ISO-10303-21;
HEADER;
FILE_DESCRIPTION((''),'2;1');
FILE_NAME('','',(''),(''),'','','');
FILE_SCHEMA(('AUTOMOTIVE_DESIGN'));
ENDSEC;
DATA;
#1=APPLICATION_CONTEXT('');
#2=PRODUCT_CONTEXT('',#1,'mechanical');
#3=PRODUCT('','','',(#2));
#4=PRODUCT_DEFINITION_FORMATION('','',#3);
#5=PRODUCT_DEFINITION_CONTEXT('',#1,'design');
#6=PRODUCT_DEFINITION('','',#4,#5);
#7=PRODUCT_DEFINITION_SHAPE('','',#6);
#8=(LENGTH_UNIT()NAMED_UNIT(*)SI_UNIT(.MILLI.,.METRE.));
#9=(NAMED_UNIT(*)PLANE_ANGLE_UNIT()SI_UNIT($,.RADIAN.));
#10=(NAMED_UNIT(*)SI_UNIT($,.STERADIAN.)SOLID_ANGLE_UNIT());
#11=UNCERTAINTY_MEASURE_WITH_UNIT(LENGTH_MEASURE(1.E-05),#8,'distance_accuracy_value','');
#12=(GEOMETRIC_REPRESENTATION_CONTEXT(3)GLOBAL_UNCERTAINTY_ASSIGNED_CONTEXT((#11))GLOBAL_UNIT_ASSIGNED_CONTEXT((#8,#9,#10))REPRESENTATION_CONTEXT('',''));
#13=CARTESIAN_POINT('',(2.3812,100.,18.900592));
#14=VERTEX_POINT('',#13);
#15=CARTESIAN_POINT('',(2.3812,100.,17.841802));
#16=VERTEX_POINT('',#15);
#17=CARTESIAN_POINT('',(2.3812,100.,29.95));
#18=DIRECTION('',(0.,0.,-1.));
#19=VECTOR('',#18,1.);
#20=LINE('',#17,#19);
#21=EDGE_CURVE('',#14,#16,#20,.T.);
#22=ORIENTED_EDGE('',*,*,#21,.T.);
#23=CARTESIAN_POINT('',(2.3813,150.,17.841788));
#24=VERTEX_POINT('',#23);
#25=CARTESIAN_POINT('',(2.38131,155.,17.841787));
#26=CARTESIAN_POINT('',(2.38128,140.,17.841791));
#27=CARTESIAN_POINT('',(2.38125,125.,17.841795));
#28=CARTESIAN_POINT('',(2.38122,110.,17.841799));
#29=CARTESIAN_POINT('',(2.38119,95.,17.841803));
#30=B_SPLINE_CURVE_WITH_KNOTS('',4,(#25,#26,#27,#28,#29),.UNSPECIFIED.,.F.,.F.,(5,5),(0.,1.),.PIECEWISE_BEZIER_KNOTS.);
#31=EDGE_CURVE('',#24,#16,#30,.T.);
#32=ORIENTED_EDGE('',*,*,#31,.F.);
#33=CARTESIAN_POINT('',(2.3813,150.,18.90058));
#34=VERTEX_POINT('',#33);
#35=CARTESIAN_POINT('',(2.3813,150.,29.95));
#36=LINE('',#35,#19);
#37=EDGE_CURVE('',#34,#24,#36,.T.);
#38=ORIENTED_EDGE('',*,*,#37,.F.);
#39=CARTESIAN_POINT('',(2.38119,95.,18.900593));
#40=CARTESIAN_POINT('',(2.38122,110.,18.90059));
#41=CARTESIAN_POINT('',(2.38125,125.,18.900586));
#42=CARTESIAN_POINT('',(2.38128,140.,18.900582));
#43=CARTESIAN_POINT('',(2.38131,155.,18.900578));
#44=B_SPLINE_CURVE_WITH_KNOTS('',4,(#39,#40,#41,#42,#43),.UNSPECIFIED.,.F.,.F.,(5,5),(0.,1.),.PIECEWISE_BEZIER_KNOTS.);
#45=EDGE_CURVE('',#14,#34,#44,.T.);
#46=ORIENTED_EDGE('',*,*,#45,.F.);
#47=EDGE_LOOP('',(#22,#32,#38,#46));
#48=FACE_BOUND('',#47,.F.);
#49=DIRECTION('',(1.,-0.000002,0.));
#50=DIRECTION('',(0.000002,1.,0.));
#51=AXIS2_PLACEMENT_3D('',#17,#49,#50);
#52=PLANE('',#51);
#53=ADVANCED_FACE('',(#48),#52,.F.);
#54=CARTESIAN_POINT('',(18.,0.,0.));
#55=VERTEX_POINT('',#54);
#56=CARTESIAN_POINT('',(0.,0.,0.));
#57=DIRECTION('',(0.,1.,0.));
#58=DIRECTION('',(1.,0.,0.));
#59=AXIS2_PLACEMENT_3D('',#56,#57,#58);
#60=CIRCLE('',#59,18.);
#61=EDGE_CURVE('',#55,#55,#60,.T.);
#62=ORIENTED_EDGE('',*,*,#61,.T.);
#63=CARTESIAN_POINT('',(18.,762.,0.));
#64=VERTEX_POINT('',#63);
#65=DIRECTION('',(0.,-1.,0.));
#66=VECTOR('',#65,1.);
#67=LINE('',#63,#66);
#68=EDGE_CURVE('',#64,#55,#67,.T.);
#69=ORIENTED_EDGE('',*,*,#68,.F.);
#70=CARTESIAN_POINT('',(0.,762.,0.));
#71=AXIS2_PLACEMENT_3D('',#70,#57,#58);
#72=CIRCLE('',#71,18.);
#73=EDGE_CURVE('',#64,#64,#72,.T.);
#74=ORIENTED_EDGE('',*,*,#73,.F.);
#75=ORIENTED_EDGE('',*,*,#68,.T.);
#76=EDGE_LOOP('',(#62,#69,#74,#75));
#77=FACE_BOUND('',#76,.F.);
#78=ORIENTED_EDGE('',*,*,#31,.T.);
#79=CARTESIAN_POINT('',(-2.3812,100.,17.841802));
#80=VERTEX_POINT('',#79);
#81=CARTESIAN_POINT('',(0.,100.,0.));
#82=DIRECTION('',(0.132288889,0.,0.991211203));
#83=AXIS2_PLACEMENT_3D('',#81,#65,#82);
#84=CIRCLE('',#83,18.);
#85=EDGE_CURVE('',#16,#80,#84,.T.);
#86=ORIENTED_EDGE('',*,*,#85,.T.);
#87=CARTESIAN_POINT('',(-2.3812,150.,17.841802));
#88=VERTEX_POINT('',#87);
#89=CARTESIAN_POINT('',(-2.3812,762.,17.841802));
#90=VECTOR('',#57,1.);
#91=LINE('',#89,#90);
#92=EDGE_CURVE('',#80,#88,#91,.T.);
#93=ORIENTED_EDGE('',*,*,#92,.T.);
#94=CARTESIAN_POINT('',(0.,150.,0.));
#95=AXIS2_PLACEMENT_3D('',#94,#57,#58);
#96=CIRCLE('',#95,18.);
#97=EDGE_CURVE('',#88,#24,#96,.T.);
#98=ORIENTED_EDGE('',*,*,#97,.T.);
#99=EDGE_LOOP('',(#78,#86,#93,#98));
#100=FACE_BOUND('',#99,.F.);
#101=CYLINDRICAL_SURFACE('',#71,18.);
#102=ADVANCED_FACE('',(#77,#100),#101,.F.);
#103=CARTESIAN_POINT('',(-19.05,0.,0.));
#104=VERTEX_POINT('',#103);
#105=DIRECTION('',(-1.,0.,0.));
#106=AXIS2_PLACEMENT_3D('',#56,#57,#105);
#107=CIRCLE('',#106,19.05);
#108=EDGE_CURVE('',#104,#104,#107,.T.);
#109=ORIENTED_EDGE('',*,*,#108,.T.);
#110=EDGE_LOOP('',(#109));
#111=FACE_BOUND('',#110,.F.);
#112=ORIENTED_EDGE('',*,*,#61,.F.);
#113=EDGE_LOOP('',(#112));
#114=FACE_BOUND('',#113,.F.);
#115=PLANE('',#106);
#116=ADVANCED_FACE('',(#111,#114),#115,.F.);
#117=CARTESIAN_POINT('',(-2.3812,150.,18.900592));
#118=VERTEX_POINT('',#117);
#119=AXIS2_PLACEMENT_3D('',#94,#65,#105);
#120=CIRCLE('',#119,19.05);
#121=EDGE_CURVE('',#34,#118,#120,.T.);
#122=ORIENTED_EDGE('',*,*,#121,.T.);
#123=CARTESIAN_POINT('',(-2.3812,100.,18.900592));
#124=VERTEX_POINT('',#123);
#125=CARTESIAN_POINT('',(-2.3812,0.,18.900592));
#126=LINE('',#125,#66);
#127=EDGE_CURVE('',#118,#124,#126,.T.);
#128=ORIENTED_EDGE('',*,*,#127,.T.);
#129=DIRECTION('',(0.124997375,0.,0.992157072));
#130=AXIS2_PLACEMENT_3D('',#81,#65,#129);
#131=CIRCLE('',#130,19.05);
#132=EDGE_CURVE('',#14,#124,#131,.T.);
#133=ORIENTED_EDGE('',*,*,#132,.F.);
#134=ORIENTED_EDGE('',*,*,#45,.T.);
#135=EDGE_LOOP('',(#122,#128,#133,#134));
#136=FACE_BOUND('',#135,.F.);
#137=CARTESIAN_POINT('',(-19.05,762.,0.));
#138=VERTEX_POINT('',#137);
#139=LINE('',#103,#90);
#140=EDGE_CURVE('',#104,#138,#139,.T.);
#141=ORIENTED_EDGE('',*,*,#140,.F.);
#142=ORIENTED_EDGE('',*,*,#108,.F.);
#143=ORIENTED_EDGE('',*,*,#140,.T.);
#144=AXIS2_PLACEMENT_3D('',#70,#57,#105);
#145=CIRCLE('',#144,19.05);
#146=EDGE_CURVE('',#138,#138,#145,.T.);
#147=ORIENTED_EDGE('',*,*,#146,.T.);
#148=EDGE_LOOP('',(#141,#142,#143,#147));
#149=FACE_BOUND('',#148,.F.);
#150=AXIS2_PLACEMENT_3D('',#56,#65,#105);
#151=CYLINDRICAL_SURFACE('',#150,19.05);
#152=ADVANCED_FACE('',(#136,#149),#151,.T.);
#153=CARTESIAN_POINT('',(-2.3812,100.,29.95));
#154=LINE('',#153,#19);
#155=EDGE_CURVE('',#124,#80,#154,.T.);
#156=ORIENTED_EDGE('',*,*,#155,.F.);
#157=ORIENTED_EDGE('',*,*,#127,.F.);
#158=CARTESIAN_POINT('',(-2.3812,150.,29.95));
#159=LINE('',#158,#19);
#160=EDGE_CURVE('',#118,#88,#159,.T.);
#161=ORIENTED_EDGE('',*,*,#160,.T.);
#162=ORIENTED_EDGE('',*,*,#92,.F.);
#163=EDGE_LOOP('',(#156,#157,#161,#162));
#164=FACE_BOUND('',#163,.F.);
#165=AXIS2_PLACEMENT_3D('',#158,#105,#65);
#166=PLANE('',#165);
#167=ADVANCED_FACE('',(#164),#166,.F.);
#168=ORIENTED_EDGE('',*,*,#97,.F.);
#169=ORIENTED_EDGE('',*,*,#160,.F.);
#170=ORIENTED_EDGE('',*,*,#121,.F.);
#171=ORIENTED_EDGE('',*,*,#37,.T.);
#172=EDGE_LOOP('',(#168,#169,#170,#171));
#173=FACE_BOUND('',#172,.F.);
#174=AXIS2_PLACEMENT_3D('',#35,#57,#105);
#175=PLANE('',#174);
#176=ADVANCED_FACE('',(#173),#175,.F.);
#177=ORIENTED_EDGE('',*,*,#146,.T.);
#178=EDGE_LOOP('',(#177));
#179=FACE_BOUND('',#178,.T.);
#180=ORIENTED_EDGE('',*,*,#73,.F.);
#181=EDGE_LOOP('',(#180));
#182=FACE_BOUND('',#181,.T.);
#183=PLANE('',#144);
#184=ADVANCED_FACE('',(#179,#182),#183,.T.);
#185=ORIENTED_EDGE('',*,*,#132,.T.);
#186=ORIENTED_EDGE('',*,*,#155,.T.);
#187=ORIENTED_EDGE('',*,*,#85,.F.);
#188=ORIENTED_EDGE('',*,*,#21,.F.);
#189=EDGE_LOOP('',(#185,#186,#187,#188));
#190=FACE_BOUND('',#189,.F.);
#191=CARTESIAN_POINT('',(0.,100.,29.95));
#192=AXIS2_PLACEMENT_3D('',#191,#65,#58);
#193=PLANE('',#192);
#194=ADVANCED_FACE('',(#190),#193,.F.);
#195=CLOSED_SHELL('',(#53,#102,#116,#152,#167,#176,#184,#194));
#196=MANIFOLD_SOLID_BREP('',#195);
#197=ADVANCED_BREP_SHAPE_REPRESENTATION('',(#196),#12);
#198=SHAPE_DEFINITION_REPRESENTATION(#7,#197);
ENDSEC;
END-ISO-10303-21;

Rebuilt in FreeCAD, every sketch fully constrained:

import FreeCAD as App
import Part
import Sketcher
Q = App.Units.Quantity


def add_polygon(sketch, points):
    """Adds a closed chain of lines whose ends are joined by coincident constraints."""
    first, n = sketch.GeometryCount, len(points)
    for a, b in zip(points, points[1:] + points[:1]):
        sketch.addGeometry(Part.LineSegment(App.Vector(*a, 0), App.Vector(*b, 0)), False)
    for i in range(n):
        sketch.addConstraint(Sketcher.Constraint("Coincident", first + i, 2, first + (i + 1) % n, 1))

doc = App.newDocument("Part")
params = doc.addObject("Spreadsheet::Sheet", "Params")
for row, (alias, value) in enumerate([
    ("sketch1_diameter", "1.5 in"),
    ("pad1_length", "30 in"),
    ("sketch3_width", "0.1875 in"),
    ("pocket2_length", "29.95 mm"),
], start=1):
    params.set(f"A{row}", alias)
    params.set(f"B{row}", "=" + value)
    params.setAlias(f"B{row}", alias)

body = doc.addObject("PartDesign::Body", "Body")

sketch1 = doc.addObject("Sketcher::SketchObject", "Sketch")
body.addObject(sketch1)
sketch1.AttachmentSupport = (doc.XZ_Plane, [""])
sketch1.MapMode = "FlatFace"
sketch1.addGeometry(Part.Circle(App.Vector(0, 0, 0), App.Vector(0, 0, 1), 19), False)
sketch1.addConstraint(Sketcher.Constraint("Coincident", 0, 3, -1, 1))
sketch1.addConstraint(Sketcher.Constraint("Diameter", 0, Q("1.5 in")))
sketch1.setExpression("Constraints[1]", "Params.sketch1_diameter")
pad1 = doc.addObject("PartDesign::Pad", "Pad")
body.addObject(pad1)
pad1.Profile = sketch1
pad1.setExpression("Length", "Params.pad1_length")
pad1.Reversed = True

sketch2 = doc.addObject("Sketcher::SketchObject", "Sketch001")
body.addObject(sketch2)
sketch2.AttachmentSupport = (doc.XZ_Plane, [""])
sketch2.MapMode = "FlatFace"
sketch2.AttachmentOffset = App.Placement(App.Vector(0, 0, -30 * 25.4), App.Rotation())
sketch2.addGeometry(Part.Circle(App.Vector(0, 0, 0), App.Vector(0, 0, 1), 18), False)
sketch2.addConstraint(Sketcher.Constraint("Coincident", 0, 3, -1, 1))
sketch2.addConstraint(Sketcher.Constraint("Diameter", 0, 36.0))
pocket1 = doc.addObject("PartDesign::Pocket", "Pocket")
body.addObject(pocket1)
pocket1.Profile = sketch2
pocket1.Type = "ThroughAll"
pocket1.Midplane = True

sketch3 = doc.addObject("Sketcher::SketchObject", "Sketch002")
body.addObject(sketch3)
sketch3.AttachmentSupport = (doc.XY_Plane, [""])
sketch3.MapMode = "FlatFace"
sketch3.AttachmentOffset = App.Placement(App.Vector(0, 0, 29.95), App.Rotation())
add_polygon(sketch3, [(-2.4, 150), (-2.4, 100), (2.4, 100), (2.4, 150)])
sketch3.addConstraint(Sketcher.Constraint("Vertical", 0))
sketch3.addConstraint(Sketcher.Constraint("Horizontal", 1))
sketch3.addConstraint(Sketcher.Constraint("Vertical", 2))
sketch3.addConstraint(Sketcher.Constraint("Horizontal", 3))
sketch3.addConstraint(Sketcher.Constraint("DistanceX", 1, 1, 1, 2, Q("0.1875 in")))
sketch3.addConstraint(Sketcher.Constraint("DistanceY", 0, 2, 0, 1, Q("1.9685 in")))
sketch3.addConstraint(Sketcher.Constraint("DistanceX", 0, 2, -1, 1, Q("0.093748 in")))
sketch3.addConstraint(Sketcher.Constraint("DistanceY", -1, 1, 0, 2, Q("3.937 in")))
sketch3.setExpression("Constraints[8]", "Params.sketch3_width")
pocket2 = doc.addObject("PartDesign::Pocket", "Pocket001")
body.addObject(pocket2)
pocket2.Profile = sketch3
pocket2.setExpression("Length", "Params.pocket2_length")

doc.recompute()
